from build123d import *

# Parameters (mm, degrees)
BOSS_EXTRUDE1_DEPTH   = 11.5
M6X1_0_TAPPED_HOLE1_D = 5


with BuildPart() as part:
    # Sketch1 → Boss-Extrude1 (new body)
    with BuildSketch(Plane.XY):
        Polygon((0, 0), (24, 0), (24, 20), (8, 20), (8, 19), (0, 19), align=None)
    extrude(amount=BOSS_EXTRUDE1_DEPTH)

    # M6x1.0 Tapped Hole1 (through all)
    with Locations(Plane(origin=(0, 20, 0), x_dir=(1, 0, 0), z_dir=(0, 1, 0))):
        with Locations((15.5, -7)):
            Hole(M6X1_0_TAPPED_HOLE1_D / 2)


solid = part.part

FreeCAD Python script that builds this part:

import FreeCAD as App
import Part
import Sketcher

V = App.Vector
Q = App.Units.Quantity

doc = App.newDocument("Part")
body = doc.addObject("PartDesign::Body", "Body")

sketch1 = doc.addObject("Sketcher::SketchObject", "Sketch")
body.addObject(sketch1)
sketch1.AttachmentSupport = (doc.XY_Plane, [""])
sketch1.MapMode = "FlatFace"
sketch1.addGeometry(Part.LineSegment(V(0, 0, 0), V(24, 0, 0)), False)
sketch1.addGeometry(Part.LineSegment(V(24, 0, 0), V(24, 20, 0)), False)
sketch1.addGeometry(Part.LineSegment(V(24, 20, 0), V(8, 20, 0)), False)
sketch1.addGeometry(Part.LineSegment(V(8, 20, 0), V(8, 19, 0)), False)
sketch1.addGeometry(Part.LineSegment(V(8, 19, 0), V(0, 19, 0)), False)
sketch1.addGeometry(Part.LineSegment(V(0, 19, 0), V(0, 0, 0)), False)
sketch1.addConstraint(Sketcher.Constraint("Coincident", 0, 2, 1, 1))
sketch1.addConstraint(Sketcher.Constraint("Coincident", 1, 2, 2, 1))
sketch1.addConstraint(Sketcher.Constraint("Coincident", 2, 2, 3, 1))
sketch1.addConstraint(Sketcher.Constraint("Coincident", 3, 2, 4, 1))
sketch1.addConstraint(Sketcher.Constraint("Coincident", 4, 2, 5, 1))
sketch1.addConstraint(Sketcher.Constraint("Coincident", 5, 2, 0, 1))
sketch1.addConstraint(Sketcher.Constraint("Horizontal", 0))
sketch1.addConstraint(Sketcher.Constraint("Vertical", 1))
sketch1.addConstraint(Sketcher.Constraint("Horizontal", 2))
sketch1.addConstraint(Sketcher.Constraint("Vertical", 3))
sketch1.addConstraint(Sketcher.Constraint("Horizontal", 4))
sketch1.addConstraint(Sketcher.Constraint("Vertical", 5))
sketch1.addConstraint(Sketcher.Constraint("Coincident", 5, 2, -1, 1))
sketch1.addConstraint(Sketcher.Constraint("DistanceX", 0, 1, 0, 2, Q("24 mm")))
sketch1.addConstraint(Sketcher.Constraint("DistanceX", 2, 2, 2, 1, Q("16 mm")))
sketch1.addConstraint(Sketcher.Constraint("DistanceY", 1, 1, 1, 2, Q("20 mm")))
sketch1.addConstraint(Sketcher.Constraint("DistanceY", 3, 2, 3, 1, Q("1 mm")))
pad1 = doc.addObject("PartDesign::Pad", "Pad")
body.addObject(pad1)
pad1.Profile = sketch1
pad1.Length = 11.5

sketch2 = doc.addObject("Sketcher::SketchObject", "Sketch001")
body.addObject(sketch2)
sketch2.AttachmentSupport = (doc.XZ_Plane, [""])
sketch2.MapMode = "FlatFace"
sketch2.AttachmentOffset = App.Placement(V(0, 0, -20), App.Rotation())
sketch2.addGeometry(Part.Circle(V(15.5, 7, 0), V(0, 0, 1), 2.5), False)
sketch2.addConstraint(Sketcher.Constraint("Diameter", 0, Q("5 mm")))
sketch2.addConstraint(Sketcher.Constraint("DistanceY", -1, 1, 0, 3, Q("7 mm")))
sketch2.addConstraint(Sketcher.Constraint("DistanceX", -1, 1, 0, 3, Q("15.5 mm")))
doc.recompute()
hole = doc.addObject("PartDesign::Hole", "Hole")
body.addObject(hole)
hole.Profile = sketch2
hole.ThreadType = "None"
hole.Diameter = 5
hole.DepthType = "ThroughAll"
hole.Reversed = True

doc.recompute()
